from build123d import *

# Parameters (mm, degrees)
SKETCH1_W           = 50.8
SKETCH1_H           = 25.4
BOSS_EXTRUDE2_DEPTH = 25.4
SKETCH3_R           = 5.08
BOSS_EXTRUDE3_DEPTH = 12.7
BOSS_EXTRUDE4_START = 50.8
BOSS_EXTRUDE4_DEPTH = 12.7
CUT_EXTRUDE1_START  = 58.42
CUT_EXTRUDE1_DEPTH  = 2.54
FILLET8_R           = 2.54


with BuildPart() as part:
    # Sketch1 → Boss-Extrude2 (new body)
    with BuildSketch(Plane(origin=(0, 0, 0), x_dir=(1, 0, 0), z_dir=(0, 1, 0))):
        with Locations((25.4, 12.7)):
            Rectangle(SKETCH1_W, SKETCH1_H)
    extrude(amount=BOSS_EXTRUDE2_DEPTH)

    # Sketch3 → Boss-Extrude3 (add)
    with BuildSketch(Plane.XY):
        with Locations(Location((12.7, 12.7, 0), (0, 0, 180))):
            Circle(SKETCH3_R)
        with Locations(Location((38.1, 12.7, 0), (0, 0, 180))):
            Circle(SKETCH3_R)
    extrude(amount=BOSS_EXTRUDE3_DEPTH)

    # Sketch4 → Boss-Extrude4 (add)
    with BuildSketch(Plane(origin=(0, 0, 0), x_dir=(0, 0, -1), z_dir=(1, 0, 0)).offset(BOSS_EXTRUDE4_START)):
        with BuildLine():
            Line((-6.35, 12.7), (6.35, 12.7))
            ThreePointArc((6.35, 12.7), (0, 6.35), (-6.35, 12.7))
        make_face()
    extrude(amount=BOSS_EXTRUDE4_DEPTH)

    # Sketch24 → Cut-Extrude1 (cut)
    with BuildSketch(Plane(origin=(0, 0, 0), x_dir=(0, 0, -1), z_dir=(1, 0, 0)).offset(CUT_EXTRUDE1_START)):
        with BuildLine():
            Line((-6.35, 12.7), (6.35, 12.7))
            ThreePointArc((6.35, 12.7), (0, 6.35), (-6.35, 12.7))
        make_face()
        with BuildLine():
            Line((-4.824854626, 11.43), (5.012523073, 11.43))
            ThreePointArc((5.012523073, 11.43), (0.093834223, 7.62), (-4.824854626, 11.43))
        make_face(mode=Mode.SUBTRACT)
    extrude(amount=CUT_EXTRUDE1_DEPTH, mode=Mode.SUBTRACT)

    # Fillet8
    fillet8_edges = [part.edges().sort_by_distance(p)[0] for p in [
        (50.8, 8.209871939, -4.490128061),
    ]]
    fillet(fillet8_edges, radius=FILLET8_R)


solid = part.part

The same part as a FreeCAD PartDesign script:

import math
import FreeCAD as App
import Part
import Sketcher
Q = App.Units.Quantity


def edges_at(feature, points):
    """Names of the edges that pass closest to the given points."""
    edges = feature.Shape.Edges
    near = lambda p: min(range(len(edges)), key=lambda i: edges[i].distToShape(Part.Vertex(*p))[0])
    return sorted({f"Edge{near(p) + 1}" for p in points})


def add_polygon(sketch, points):
    """Adds a closed chain of lines whose ends are joined by coincident constraints."""
    first, n = sketch.GeometryCount, len(points)
    for a, b in zip(points, points[1:] + points[:1]):
        sketch.addGeometry(Part.LineSegment(App.Vector(*a, 0), App.Vector(*b, 0)), False)
    for i in range(n):
        sketch.addConstraint(Sketcher.Constraint("Coincident", first + i, 2, first + (i + 1) % n, 1))

doc = App.newDocument("Part")
body = doc.addObject("PartDesign::Body", "Body")

sketch1 = body.newObject("Sketcher::SketchObject", "Sketch")
sketch1.AttachmentSupport = (doc.getObject("XZ_Plane"), [""])
sketch1.MapMode = "FlatFace"
add_polygon(sketch1, [(0, -25.4), (0, 0), (50.8, 0), (50.8, -25.4)])
sketch1.addConstraint([
    Sketcher.Constraint("Vertical", 0),
    Sketcher.Constraint("Horizontal", 1),
    Sketcher.Constraint("Vertical", 2),
    Sketcher.Constraint("Horizontal", 3),
    Sketcher.Constraint("Coincident", 0, 2, -1, 1),
    Sketcher.Constraint("DistanceX", 1, 1, 1, 2, Q("2 in")),
    Sketcher.Constraint("DistanceY", 0, 1, 0, 2, Q("1 in")),
])
pad1 = body.newObject("PartDesign::Pad", "Pad")
pad1.Profile = sketch1
pad1.Length = Q("1 in")
pad1.Reversed = True

sketch2 = body.newObject("Sketcher::SketchObject", "Sketch001")
sketch2.AttachmentSupport = (doc.getObject("XY_Plane"), [""])
sketch2.MapMode = "FlatFace"
sketch2.addGeometry([
    Part.Circle(App.Vector(12.7, 12.7, 0), App.Vector(0, 0, 1), 5.08),
    Part.Circle(App.Vector(38.1, 12.7, 0), App.Vector(0, 0, 1), 5.08),
], False)
sketch2.addConstraint([
    Sketcher.Constraint("Equal", 0, 1),
    Sketcher.Constraint("Horizontal", 0, 3, 1, 3),
    Sketcher.Constraint("Diameter", 0, Q("0.4 in")),
    Sketcher.Constraint("DistanceX", 0, 3, 1, 3, Q("1 in")),
    Sketcher.Constraint("DistanceX", -1, 1, 0, 3, Q("0.5 in")),
    Sketcher.Constraint("DistanceY", -1, 1, 0, 3, Q("0.5 in")),
])
pad2 = body.newObject("PartDesign::Pad", "Pad001")
pad2.Profile = sketch2
pad2.Length = Q("0.5 in")

sketch3 = body.newObject("Sketcher::SketchObject", "Sketch002")
sketch3.AttachmentSupport = (doc.getObject("YZ_Plane"), [""])
sketch3.MapMode = "FlatFace"
sketch3.AttachmentOffset = App.Placement(App.Vector(0, 0, 2 * 25.4), App.Rotation())
sketch3.addGeometry([
    Part.LineSegment(App.Vector(12.7, -6.35, 0), App.Vector(12.7, 6.35, 0)),
    Part.ArcOfCircle(Part.Circle(App.Vector(12.7, 0, 0), App.Vector(0, 0, 1), 6.35), math.radians(90), math.radians(270)),
], False)
sketch3.addConstraint([
    Sketcher.Constraint("Coincident", 0, 1, 1, 2),
    Sketcher.Constraint("Coincident", 1, 1, 0, 2),
    Sketcher.Constraint("Vertical", 0),
    Sketcher.Constraint("PointOnObject", 1, 3, -1),
    Sketcher.Constraint("Vertical", 1, 3, 0, 1),
    Sketcher.Constraint("Radius", 1, Q("0.25 in")),
    Sketcher.Constraint("DistanceX", -1, 1, 1, 3, Q("0.5 in")),
])
pad3 = body.newObject("PartDesign::Pad", "Pad002")
pad3.Profile = sketch3
pad3.Length = Q("0.5 in")

sketch4 = body.newObject("Sketcher::SketchObject", "Sketch003")
sketch4.AttachmentSupport = (doc.getObject("YZ_Plane"), [""])
sketch4.MapMode = "FlatFace"
sketch4.AttachmentOffset = App.Placement(App.Vector(0, 0, 2.3 * 25.4), App.Rotation())
sketch4.addGeometry([
    Part.LineSegment(App.Vector(12.7, -6.35, 0), App.Vector(12.7, 6.35, 0)),
    Part.ArcOfCircle(Part.Circle(App.Vector(12.7, 0, 0), App.Vector(0, 0, 1), 6.35), math.radians(90), math.radians(270)),
    Part.LineSegment(App.Vector(11.43, 4.824855, 0), App.Vector(11.43, -5.012523, 0)),
    Part.ArcOfCircle(Part.Circle(App.Vector(12.7, -0.093834, 0), App.Vector(0, 0, 1), 5.08), math.radians(104.477512), math.radians(255.522488)),
], False)
sketch4.addConstraint([
    Sketcher.Constraint("Coincident", 0, 1, 1, 2),
    Sketcher.Constraint("Coincident", 1, 1, 0, 2),
    Sketcher.Constraint("Coincident", 2, 1, 3, 1),
    Sketcher.Constraint("Coincident", 3, 2, 2, 2),
    Sketcher.Constraint("Vertical", 0),
    Sketcher.Constraint("Vertical", 2),
    Sketcher.Constraint("PointOnObject", 1, 3, -1),
    Sketcher.Constraint("Vertical", 1, 3, 3, 3),
    Sketcher.Constraint("Vertical", 3, 3, 0, 1),
    Sketcher.Constraint("Radius", 3, Q("0.2 in")),
    Sketcher.Constraint("Radius", 1, Q("0.25 in")),
    Sketcher.Constraint("DistanceX", -1, 1, 1, 3, Q("0.5 in")),
    Sketcher.Constraint("DistanceX", -1, 1, 2, 1, Q("0.45 in")),
    Sketcher.Constraint("DistanceY", 3, 3, -1, 1, 0.093834),
])
pocket1 = body.newObject("PartDesign::Pocket", "Pocket")
pocket1.Profile = sketch4
pocket1.Length = Q("0.1 in")
pocket1.Reversed = True
doc.recompute()

fillet = body.newObject("PartDesign::Fillet", "Fillet")
fillet.Base = (pocket1, edges_at(pocket1, [(50.8, 8.21, -4.49)]))
fillet.Radius = Q("0.1 in")

doc.recompute()
